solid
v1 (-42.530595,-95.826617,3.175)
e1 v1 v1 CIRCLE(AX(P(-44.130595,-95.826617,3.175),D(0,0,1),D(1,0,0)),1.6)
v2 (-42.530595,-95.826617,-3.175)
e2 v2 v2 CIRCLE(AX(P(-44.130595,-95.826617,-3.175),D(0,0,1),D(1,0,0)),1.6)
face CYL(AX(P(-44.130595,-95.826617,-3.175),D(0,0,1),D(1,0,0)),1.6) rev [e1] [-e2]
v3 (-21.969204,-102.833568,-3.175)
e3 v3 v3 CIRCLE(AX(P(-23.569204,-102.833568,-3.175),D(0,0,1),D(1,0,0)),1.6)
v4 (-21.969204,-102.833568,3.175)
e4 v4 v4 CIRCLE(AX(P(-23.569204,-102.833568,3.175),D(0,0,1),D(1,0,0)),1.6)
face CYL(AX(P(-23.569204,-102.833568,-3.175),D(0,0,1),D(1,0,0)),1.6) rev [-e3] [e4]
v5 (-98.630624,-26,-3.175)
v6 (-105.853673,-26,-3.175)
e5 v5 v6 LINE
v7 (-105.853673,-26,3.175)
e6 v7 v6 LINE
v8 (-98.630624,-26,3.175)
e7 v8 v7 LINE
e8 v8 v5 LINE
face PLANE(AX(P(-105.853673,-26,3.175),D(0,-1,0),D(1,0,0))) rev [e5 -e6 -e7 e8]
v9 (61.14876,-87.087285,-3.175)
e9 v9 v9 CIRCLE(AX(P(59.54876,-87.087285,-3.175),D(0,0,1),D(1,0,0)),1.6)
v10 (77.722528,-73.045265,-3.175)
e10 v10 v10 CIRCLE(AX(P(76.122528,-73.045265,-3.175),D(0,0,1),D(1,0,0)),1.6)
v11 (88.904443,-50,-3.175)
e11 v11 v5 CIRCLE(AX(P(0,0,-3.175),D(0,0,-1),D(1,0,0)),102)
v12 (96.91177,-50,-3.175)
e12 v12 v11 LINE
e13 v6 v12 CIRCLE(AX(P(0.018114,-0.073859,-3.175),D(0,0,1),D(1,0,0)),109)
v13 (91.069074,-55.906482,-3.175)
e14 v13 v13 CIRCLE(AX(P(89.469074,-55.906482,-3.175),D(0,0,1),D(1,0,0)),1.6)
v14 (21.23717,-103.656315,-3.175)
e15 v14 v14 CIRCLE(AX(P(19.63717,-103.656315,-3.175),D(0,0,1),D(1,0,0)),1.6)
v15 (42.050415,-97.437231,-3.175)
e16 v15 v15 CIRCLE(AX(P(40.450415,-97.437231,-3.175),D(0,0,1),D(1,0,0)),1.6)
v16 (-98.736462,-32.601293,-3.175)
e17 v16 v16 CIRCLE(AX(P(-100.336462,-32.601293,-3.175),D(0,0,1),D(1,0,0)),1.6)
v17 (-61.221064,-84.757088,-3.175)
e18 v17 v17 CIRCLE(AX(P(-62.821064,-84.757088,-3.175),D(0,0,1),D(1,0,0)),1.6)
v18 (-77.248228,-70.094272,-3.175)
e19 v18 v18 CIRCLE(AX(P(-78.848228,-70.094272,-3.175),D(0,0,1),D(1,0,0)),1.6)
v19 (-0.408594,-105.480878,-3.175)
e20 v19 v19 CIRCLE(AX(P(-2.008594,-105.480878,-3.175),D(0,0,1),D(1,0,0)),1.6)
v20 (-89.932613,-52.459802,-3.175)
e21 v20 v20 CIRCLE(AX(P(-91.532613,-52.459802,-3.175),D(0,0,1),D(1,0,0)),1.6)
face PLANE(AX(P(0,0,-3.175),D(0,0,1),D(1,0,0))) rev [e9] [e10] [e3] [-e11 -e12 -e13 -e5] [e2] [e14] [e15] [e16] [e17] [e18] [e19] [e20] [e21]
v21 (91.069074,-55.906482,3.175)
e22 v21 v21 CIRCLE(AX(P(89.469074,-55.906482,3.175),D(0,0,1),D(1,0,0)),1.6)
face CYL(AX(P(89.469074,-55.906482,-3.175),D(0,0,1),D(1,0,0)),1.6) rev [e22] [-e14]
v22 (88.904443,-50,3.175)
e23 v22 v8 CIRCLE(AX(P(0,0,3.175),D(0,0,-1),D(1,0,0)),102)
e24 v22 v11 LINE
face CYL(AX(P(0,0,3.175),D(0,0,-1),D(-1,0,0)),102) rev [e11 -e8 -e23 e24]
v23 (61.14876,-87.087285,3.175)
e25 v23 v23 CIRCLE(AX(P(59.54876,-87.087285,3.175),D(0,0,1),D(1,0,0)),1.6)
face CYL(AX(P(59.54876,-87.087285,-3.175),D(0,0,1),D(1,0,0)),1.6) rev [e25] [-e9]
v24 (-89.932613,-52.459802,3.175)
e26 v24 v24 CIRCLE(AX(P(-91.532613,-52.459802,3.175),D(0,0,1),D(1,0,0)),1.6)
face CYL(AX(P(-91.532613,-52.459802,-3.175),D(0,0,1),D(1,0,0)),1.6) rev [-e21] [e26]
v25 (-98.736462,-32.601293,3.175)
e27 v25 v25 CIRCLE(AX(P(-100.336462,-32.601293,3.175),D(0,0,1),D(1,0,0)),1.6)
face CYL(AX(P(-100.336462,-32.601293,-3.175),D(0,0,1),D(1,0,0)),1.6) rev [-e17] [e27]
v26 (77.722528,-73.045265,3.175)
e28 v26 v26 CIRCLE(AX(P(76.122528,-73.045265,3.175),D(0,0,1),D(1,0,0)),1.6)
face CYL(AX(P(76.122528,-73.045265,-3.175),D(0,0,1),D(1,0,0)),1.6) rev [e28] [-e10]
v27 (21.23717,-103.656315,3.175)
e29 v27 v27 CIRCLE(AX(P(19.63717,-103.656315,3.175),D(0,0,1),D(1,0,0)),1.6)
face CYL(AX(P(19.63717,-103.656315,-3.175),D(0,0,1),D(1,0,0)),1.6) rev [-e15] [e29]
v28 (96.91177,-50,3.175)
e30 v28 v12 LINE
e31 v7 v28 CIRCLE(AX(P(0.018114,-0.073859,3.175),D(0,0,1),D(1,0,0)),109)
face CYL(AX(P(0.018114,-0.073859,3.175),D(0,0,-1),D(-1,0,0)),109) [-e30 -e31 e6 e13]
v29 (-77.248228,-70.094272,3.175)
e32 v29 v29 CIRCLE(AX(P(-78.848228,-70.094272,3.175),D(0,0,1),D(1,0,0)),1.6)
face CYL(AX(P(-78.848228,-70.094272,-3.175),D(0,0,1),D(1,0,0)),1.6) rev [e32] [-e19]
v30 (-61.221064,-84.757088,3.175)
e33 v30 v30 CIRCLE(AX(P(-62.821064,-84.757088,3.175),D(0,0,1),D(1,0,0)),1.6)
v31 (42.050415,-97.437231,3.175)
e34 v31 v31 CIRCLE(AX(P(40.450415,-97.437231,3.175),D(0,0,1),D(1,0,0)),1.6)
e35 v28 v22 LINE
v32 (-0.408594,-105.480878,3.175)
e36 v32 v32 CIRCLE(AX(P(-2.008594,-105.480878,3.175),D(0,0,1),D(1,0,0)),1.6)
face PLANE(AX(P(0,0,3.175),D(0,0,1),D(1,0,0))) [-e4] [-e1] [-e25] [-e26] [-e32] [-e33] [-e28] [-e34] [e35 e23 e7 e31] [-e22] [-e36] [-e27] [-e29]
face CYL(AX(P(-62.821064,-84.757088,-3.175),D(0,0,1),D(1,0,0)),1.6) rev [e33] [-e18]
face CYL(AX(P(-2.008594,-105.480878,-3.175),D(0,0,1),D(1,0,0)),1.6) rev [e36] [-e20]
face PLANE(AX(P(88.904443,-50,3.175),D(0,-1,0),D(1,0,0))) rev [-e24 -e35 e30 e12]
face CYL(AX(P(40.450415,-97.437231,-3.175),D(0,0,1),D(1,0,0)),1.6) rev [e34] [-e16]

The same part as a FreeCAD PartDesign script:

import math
import FreeCAD as App
import Part
import Sketcher

doc = App.newDocument("Part")
body = doc.addObject("PartDesign::Body", "Body")

# Sketch on XY plane
sketch1 = doc.addObject("Sketcher::SketchObject", "Sketch")
body.addObject(sketch1)
sketch1.AttachmentSupport = (doc.XY_Plane, [""])
sketch1.MapMode = "FlatFace"
sketch1.addGeometry(Part.LineSegment(App.Vector(97, -50, 0), App.Vector(89, -50, 0)), False)
sketch1.addGeometry(Part.ArcOfCircle(Part.Circle(App.Vector(0, 0, 0), App.Vector(0, 0, 1), 102), math.radians(-165), math.radians(-29)), False)
sketch1.addGeometry(Part.LineSegment(App.Vector(-99, -26, 0), App.Vector(-106, -26, 0)), False)
sketch1.addGeometry(Part.ArcOfCircle(Part.Circle(App.Vector(0, 0, 0), App.Vector(0, 0, 1), 109), math.radians(-166), math.radians(-27)), False)
sketch1.addConstraint(Sketcher.Constraint("Coincident", 0, 2, 1, 2))
sketch1.addConstraint(Sketcher.Constraint("Coincident", 1, 1, 2, 1))
sketch1.addConstraint(Sketcher.Constraint("Coincident", 2, 2, 3, 1))
sketch1.addConstraint(Sketcher.Constraint("Coincident", 3, 2, 0, 1))
sketch1.addConstraint(Sketcher.Constraint("Horizontal", 0))
sketch1.addConstraint(Sketcher.Constraint("Horizontal", 2))
sketch1.addConstraint(Sketcher.Constraint("Coincident", 1, 3, -1, 1))
sketch1.addConstraint(Sketcher.Constraint("Radius", 1, 102.0))
sketch1.addConstraint(Sketcher.Constraint("Radius", 3, 109.0))
sketch1.addConstraint(Sketcher.Constraint("DistanceY", 0, 2, -1, 1, 50.0))
sketch1.addConstraint(Sketcher.Constraint("DistanceY", 1, 1, -1, 1, 26.0))
sketch1.addConstraint(Sketcher.Constraint("DistanceX", 2, 2, 2, 1, 7.223049))
sketch1.addConstraint(Sketcher.Constraint("DistanceX", 0, 2, 0, 1, 8.007327))
pad1 = doc.addObject("PartDesign::Pad", "Pad")
body.addObject(pad1)
pad1.Profile = sketch1
pad1.Length = 6.35
pad1.Midplane = True

# Sketch on XY plane
sketch2 = doc.addObject("Sketcher::SketchObject", "Sketch001")
body.addObject(sketch2)
sketch2.AttachmentSupport = (doc.XY_Plane, [""])
sketch2.MapMode = "FlatFace"
sketch2.AttachmentOffset = App.Placement(App.Vector(0, 0, 3.175), App.Rotation())
sketch2.addGeometry(Part.Circle(App.Vector(-103.2, -21.9, 0), App.Vector(0, 0, 1), 1.6), False)
sketch2.addGeometry(Part.Circle(App.Vector(-105.4, -4.4, 0), App.Vector(0, 0, 1), 1.6), False)
sketch2.addGeometry(Part.Circle(App.Vector(-104.7, -13.2, 0), App.Vector(0, 0, 1), 1.6), False)
sketch2.addGeometry(Part.Circle(App.Vector(-100.3, 32.6, 0), App.Vector(0, 0, 1), 1.6), False)
sketch2.addGeometry(Part.Circle(App.Vector(104.3, 15.9, 0), App.Vector(0, 0, 1), 1.6), False)
sketch2.addGeometry(Part.Circle(App.Vector(100.7, 31.4, 0), App.Vector(0, 0, 1), 1.6), False)
sketch2.addGeometry(Part.Circle(App.Vector(94.8, 46.2, 0), App.Vector(0, 0, 1), 1.6), False)
sketch2.addGeometry(Part.Circle(App.Vector(-103.2, 21.9, 0), App.Vector(0, 0, 1), 1.6), False)
sketch2.addGeometry(Part.Circle(App.Vector(-104.7, 13.2, 0), App.Vector(0, 0, 1), 1.6), False)
sketch2.addGeometry(Part.Circle(App.Vector(-105.4, 4.4, 0), App.Vector(0, 0, 1), 1.6), False)
sketch2.addGeometry(Part.Circle(App.Vector(89.5, -55.9, 0), App.Vector(0, 0, 1), 1.6), False)
sketch2.addGeometry(Part.Circle(App.Vector(-44.1, 95.8, 0), App.Vector(0, 0, 1), 1.6), False)
sketch2.addGeometry(Part.Circle(App.Vector(-62.8, 84.8, 0), App.Vector(0, 0, 1), 1.6), False)
sketch2.addGeometry(Part.Circle(App.Vector(-78.8, 70.1, 0), App.Vector(0, 0, 1), 1.6), False)
sketch2.addGeometry(Part.Circle(App.Vector(-91.5, 52.5, 0), App.Vector(0, 0, 1), 1.6), False)
sketch2.addGeometry(Part.Circle(App.Vector(94.8, -46.2, 0), App.Vector(0, 0, 1), 1.6), False)
sketch2.addGeometry(Part.Circle(App.Vector(100.7, -31.4, 0), App.Vector(0, 0, 1), 1.6), False)
sketch2.addGeometry(Part.Circle(App.Vector(104.3, -15.9, 0), App.Vector(0, 0, 1), 1.6), False)
sketch2.addGeometry(Part.Circle(App.Vector(105.5, 0, 0), App.Vector(0, 0, 1), 1.6), False)
sketch2.addGeometry(Part.Circle(App.Vector(76.1, -73, 0), App.Vector(0, 0, 1), 1.6), False)
sketch2.addGeometry(Part.Circle(App.Vector(89.5, 55.9, 0), App.Vector(0, 0, 1), 1.6), False)
sketch2.addGeometry(Part.Circle(App.Vector(76.1, 73, 0), App.Vector(0, 0, 1), 1.6), False)
sketch2.addGeometry(Part.Circle(App.Vector(59.5, 87.1, 0), App.Vector(0, 0, 1), 1.6), False)
sketch2.addGeometry(Part.Circle(App.Vector(40.5, 97.4, 0), App.Vector(0, 0, 1), 1.6), False)
sketch2.addGeometry(Part.Circle(App.Vector(19.6, 103.7, 0), App.Vector(0, 0, 1), 1.6), False)
sketch2.addGeometry(Part.Circle(App.Vector(-2, 105.5, 0), App.Vector(0, 0, 1), 1.6), False)
sketch2.addGeometry(Part.Circle(App.Vector(-23.6, 102.8, 0), App.Vector(0, 0, 1), 1.6), False)
sketch2.addGeometry(Part.Circle(App.Vector(-91.5, -52.5, 0), App.Vector(0, 0, 1), 1.6), False)
sketch2.addGeometry(Part.Circle(App.Vector(-62.8, -84.8, 0), App.Vector(0, 0, 1), 1.6), False)
sketch2.addGeometry(Part.Circle(App.Vector(-44.1, -95.8, 0), App.Vector(0, 0, 1), 1.6), False)
sketch2.addGeometry(Part.Circle(App.Vector(-23.6, -102.8, 0), App.Vector(0, 0, 1), 1.6), False)
sketch2.addGeometry(Part.Circle(App.Vector(-2, -105.5, 0), App.Vector(0, 0, 1), 1.6), False)
sketch2.addGeometry(Part.Circle(App.Vector(19.6, -103.7, 0), App.Vector(0, 0, 1), 1.6), False)
sketch2.addGeometry(Part.Circle(App.Vector(40.5, -97.4, 0), App.Vector(0, 0, 1), 1.6), False)
sketch2.addGeometry(Part.Circle(App.Vector(59.5, -87.1, 0), App.Vector(0, 0, 1), 1.6), False)
sketch2.addGeometry(Part.Circle(App.Vector(-78.8, -70.1, 0), App.Vector(0, 0, 1), 1.6), False)
sketch2.addGeometry(Part.Circle(App.Vector(-100.3, -32.6, 0), App.Vector(0, 0, 1), 1.6), False)
sketch2.addConstraint(Sketcher.Constraint("Equal", 0, 1))
sketch2.addConstraint(Sketcher.Constraint("Equal", 1, 2))
sketch2.addConstraint(Sketcher.Constraint("Equal", 2, 3))
sketch2.addConstraint(Sketcher.Constraint("Equal", 3, 4))
sketch2.addConstraint(Sketcher.Constraint("Equal", 4, 5))
sketch2.addConstraint(Sketcher.Constraint("Equal", 5, 6))
sketch2.addConstraint(Sketcher.Constraint("Equal", 6, 7))
sketch2.addConstraint(Sketcher.Constraint("Equal", 7, 8))
sketch2.addConstraint(Sketcher.Constraint("Equal", 8, 9))
sketch2.addConstraint(Sketcher.Constraint("Equal", 9, 10))
sketch2.addConstraint(Sketcher.Constraint("Equal", 10, 11))
sketch2.addConstraint(Sketcher.Constraint("Equal", 11, 12))
sketch2.addConstraint(Sketcher.Constraint("Equal", 12, 13))
sketch2.addConstraint(Sketcher.Constraint("Equal", 13, 14))
sketch2.addConstraint(Sketcher.Constraint("Equal", 14, 15))
sketch2.addConstraint(Sketcher.Constraint("Equal", 15, 16))
sketch2.addConstraint(Sketcher.Constraint("Equal", 16, 17))
sketch2.addConstraint(Sketcher.Constraint("Equal", 17, 18))
sketch2.addConstraint(Sketcher.Constraint("Equal", 18, 19))
sketch2.addConstraint(Sketcher.Constraint("Equal", 19, 20))
sketch2.addConstraint(Sketcher.Constraint("Equal", 20, 21))
sketch2.addConstraint(Sketcher.Constraint("Equal", 21, 22))
sketch2.addConstraint(Sketcher.Constraint("Equal", 22, 23))
sketch2.addConstraint(Sketcher.Constraint("Equal", 23, 24))
sketch2.addConstraint(Sketcher.Constraint("Equal", 24, 25))
sketch2.addConstraint(Sketcher.Constraint("Equal", 25, 26))
sketch2.addConstraint(Sketcher.Constraint("Equal", 26, 27))
sketch2.addConstraint(Sketcher.Constraint("Equal", 27, 28))
sketch2.addConstraint(Sketcher.Constraint("Equal", 28, 29))
sketch2.addConstraint(Sketcher.Constraint("Equal", 29, 30))
sketch2.addConstraint(Sketcher.Constraint("Equal", 30, 31))
sketch2.addConstraint(Sketcher.Constraint("Equal", 31, 32))
sketch2.addConstraint(Sketcher.Constraint("Equal", 32, 33))
sketch2.addConstraint(Sketcher.Constraint("Equal", 33, 34))
sketch2.addConstraint(Sketcher.Constraint("Equal", 34, 35))
sketch2.addConstraint(Sketcher.Constraint("Equal", 35, 36))
sketch2.addConstraint(Sketcher.Constraint("Symmetric", 0, 3, 7, 3, -1))
sketch2.addConstraint(Sketcher.Constraint("Symmetric", 2, 3, 8, 3, -1))
sketch2.addConstraint(Sketcher.Constraint("Symmetric", 1, 3, 9, 3, -1))
sketch2.addConstraint(Sketcher.Constraint("Symmetric", 6, 3, 15, 3, -1))
sketch2.addConstraint(Sketcher.Constraint("Symmetric", 5, 3, 16, 3, -1))
sketch2.addConstraint(Sketcher.Constraint("Symmetric", 4, 3, 17, 3, -1))
sketch2.addConstraint(Sketcher.Constraint("Symmetric", 10, 3, 20, 3, -1))
sketch2.addConstraint(Sketcher.Constraint("Symmetric", 19, 3, 21, 3, -1))
sketch2.addConstraint(Sketcher.Constraint("Symmetric", 14, 3, 27, 3, -1))
sketch2.addConstraint(Sketcher.Constraint("Symmetric", 12, 3, 28, 3, -1))
sketch2.addConstraint(Sketcher.Constraint("Symmetric", 11, 3, 29, 3, -1))
sketch2.addConstraint(Sketcher.Constraint("Symmetric", 26, 3, 30, 3, -1))
sketch2.addConstraint(Sketcher.Constraint("Symmetric", 25, 3, 31, 3, -1))
sketch2.addConstraint(Sketcher.Constraint("Symmetric", 24, 3, 32, 3, -1))
sketch2.addConstraint(Sketcher.Constraint("Symmetric", 23, 3, 33, 3, -1))
sketch2.addConstraint(Sketcher.Constraint("Symmetric", 22, 3, 34, 3, -1))
sketch2.addConstraint(Sketcher.Constraint("Symmetric", 13, 3, 35, 3, -1))
sketch2.addConstraint(Sketcher.Constraint("Symmetric", 3, 3, 36, 3, -1))
sketch2.addConstraint(Sketcher.Constraint("PointOnObject", 18, 3, -1))
sketch2.addConstraint(Sketcher.Constraint("Diameter", 0, 3.2))
sketch2.addConstraint(Sketcher.Constraint("DistanceX", -1, 1, 18, 3, 105.5))
sketch2.addConstraint(Sketcher.Constraint("DistanceY", 2, 3, 4, 3, 29.119999))
sketch2.addConstraint(Sketcher.Constraint("DistanceX", 11, 3, 25, 3, 42.122001))
sketch2.addConstraint(Sketcher.Constraint("DistanceX", 2, 3, -1, 1, 104.668101))
sketch2.addConstraint(Sketcher.Constraint("DistanceY", -1, 1, 14, 3, 52.459802))
sketch2.addConstraint(Sketcher.Constraint("DistanceY", 0, 3, 1, 3, 17.516802))
sketch2.addConstraint(Sketcher.Constraint("DistanceY", 2, 3, 5, 3, 44.654301))
sketch2.addConstraint(Sketcher.Constraint("DistanceX", 6, 3, 4, 3, 9.4726))
sketch2.addConstraint(Sketcher.Constraint("DistanceY", 10, 3, 0, 3, 33.971799))
sketch2.addConstraint(Sketcher.Constraint("DistanceY", 1, 3, 11, 3, 100.244499))
sketch2.addConstraint(Sketcher.Constraint("DistanceX", 3, 3, 12, 3, 37.515398))
sketch2.addConstraint(Sketcher.Constraint("DistanceY", 15, 3, 4, 3, 62.145499))
sketch2.addConstraint(Sketcher.Constraint("DistanceX", 0, 3, -1, 1, 103.194572))
sketch2.addConstraint(Sketcher.Constraint("DistanceX", 1, 3, -1, 1, 105.407459))
sketch2.addConstraint(Sketcher.Constraint("DistanceY", 1, 3, -1, 1, 4.417881))
sketch2.addConstraint(Sketcher.Constraint("DistanceX", -1, 1, 4, 3, 104.295371))
sketch2.addConstraint(Sketcher.Constraint("DistanceX", 13, 3, -1, 1, 78.848228))
sketch2.addConstraint(Sketcher.Constraint("DistanceY", -1, 1, 13, 3, 70.094272))
sketch2.addConstraint(Sketcher.Constraint("DistanceX", -1, 1, 19, 3, 76.122528))
sketch2.addConstraint(Sketcher.Constraint("DistanceX", -1, 1, 22, 3, 59.54876))
sketch2.addConstraint(Sketcher.Constraint("DistanceY", -1, 1, 23, 3, 97.437231))
sketch2.addConstraint(Sketcher.Constraint("DistanceX", -1, 1, 24, 3, 19.63717))
sketch2.addConstraint(Sketcher.Constraint("DistanceX", 2, 3, 3, 3, 4.331639))
sketch2.addConstraint(Sketcher.Constraint("DistanceY", 2, 3, 3, 3, 45.823949))
sketch2.addConstraint(Sketcher.Constraint("DistanceY", 0, 3, 5, 3, 53.366328))
sketch2.addConstraint(Sketcher.Constraint("DistanceX", 10, 3, 5, 3, 11.239921))
sketch2.addConstraint(Sketcher.Constraint("DistanceX", 12, 3, 11, 3, 18.69047))
sketch2.addConstraint(Sketcher.Constraint("DistanceY", 12, 3, 11, 3, 11.06953))
sketch2.addConstraint(Sketcher.Constraint("DistanceX", 3, 3, 14, 3, 8.80385))
sketch2.addConstraint(Sketcher.Constraint("DistanceY", 19, 3, 15, 3, 26.797109))
sketch2.addConstraint(Sketcher.Constraint("DistanceY", 21, 3, 22, 3, 14.04202))
sketch2.addConstraint(Sketcher.Constraint("DistanceX", 23, 3, 20, 3, 49.018659))
sketch2.addConstraint(Sketcher.Constraint("DistanceX", 11, 3, 23, 3, 84.58101))
sketch2.addConstraint(Sketcher.Constraint("DistanceY", 22, 3, 24, 3, 16.569029))
sketch2.addConstraint(Sketcher.Constraint("DistanceY", 11, 3, 25, 3, 9.65426))
sketch2.addConstraint(Sketcher.Constraint("DistanceX", 11, 3, 26, 3, 20.561391))
sketch2.addConstraint(Sketcher.Constraint("DistanceY", 11, 3, 26, 3, 7.00695))
pocket1 = doc.addObject("PartDesign::Pocket", "Pocket")
body.addObject(pocket1)
pocket1.Profile = sketch2
pocket1.Type = "ThroughAll"

doc.recompute()
